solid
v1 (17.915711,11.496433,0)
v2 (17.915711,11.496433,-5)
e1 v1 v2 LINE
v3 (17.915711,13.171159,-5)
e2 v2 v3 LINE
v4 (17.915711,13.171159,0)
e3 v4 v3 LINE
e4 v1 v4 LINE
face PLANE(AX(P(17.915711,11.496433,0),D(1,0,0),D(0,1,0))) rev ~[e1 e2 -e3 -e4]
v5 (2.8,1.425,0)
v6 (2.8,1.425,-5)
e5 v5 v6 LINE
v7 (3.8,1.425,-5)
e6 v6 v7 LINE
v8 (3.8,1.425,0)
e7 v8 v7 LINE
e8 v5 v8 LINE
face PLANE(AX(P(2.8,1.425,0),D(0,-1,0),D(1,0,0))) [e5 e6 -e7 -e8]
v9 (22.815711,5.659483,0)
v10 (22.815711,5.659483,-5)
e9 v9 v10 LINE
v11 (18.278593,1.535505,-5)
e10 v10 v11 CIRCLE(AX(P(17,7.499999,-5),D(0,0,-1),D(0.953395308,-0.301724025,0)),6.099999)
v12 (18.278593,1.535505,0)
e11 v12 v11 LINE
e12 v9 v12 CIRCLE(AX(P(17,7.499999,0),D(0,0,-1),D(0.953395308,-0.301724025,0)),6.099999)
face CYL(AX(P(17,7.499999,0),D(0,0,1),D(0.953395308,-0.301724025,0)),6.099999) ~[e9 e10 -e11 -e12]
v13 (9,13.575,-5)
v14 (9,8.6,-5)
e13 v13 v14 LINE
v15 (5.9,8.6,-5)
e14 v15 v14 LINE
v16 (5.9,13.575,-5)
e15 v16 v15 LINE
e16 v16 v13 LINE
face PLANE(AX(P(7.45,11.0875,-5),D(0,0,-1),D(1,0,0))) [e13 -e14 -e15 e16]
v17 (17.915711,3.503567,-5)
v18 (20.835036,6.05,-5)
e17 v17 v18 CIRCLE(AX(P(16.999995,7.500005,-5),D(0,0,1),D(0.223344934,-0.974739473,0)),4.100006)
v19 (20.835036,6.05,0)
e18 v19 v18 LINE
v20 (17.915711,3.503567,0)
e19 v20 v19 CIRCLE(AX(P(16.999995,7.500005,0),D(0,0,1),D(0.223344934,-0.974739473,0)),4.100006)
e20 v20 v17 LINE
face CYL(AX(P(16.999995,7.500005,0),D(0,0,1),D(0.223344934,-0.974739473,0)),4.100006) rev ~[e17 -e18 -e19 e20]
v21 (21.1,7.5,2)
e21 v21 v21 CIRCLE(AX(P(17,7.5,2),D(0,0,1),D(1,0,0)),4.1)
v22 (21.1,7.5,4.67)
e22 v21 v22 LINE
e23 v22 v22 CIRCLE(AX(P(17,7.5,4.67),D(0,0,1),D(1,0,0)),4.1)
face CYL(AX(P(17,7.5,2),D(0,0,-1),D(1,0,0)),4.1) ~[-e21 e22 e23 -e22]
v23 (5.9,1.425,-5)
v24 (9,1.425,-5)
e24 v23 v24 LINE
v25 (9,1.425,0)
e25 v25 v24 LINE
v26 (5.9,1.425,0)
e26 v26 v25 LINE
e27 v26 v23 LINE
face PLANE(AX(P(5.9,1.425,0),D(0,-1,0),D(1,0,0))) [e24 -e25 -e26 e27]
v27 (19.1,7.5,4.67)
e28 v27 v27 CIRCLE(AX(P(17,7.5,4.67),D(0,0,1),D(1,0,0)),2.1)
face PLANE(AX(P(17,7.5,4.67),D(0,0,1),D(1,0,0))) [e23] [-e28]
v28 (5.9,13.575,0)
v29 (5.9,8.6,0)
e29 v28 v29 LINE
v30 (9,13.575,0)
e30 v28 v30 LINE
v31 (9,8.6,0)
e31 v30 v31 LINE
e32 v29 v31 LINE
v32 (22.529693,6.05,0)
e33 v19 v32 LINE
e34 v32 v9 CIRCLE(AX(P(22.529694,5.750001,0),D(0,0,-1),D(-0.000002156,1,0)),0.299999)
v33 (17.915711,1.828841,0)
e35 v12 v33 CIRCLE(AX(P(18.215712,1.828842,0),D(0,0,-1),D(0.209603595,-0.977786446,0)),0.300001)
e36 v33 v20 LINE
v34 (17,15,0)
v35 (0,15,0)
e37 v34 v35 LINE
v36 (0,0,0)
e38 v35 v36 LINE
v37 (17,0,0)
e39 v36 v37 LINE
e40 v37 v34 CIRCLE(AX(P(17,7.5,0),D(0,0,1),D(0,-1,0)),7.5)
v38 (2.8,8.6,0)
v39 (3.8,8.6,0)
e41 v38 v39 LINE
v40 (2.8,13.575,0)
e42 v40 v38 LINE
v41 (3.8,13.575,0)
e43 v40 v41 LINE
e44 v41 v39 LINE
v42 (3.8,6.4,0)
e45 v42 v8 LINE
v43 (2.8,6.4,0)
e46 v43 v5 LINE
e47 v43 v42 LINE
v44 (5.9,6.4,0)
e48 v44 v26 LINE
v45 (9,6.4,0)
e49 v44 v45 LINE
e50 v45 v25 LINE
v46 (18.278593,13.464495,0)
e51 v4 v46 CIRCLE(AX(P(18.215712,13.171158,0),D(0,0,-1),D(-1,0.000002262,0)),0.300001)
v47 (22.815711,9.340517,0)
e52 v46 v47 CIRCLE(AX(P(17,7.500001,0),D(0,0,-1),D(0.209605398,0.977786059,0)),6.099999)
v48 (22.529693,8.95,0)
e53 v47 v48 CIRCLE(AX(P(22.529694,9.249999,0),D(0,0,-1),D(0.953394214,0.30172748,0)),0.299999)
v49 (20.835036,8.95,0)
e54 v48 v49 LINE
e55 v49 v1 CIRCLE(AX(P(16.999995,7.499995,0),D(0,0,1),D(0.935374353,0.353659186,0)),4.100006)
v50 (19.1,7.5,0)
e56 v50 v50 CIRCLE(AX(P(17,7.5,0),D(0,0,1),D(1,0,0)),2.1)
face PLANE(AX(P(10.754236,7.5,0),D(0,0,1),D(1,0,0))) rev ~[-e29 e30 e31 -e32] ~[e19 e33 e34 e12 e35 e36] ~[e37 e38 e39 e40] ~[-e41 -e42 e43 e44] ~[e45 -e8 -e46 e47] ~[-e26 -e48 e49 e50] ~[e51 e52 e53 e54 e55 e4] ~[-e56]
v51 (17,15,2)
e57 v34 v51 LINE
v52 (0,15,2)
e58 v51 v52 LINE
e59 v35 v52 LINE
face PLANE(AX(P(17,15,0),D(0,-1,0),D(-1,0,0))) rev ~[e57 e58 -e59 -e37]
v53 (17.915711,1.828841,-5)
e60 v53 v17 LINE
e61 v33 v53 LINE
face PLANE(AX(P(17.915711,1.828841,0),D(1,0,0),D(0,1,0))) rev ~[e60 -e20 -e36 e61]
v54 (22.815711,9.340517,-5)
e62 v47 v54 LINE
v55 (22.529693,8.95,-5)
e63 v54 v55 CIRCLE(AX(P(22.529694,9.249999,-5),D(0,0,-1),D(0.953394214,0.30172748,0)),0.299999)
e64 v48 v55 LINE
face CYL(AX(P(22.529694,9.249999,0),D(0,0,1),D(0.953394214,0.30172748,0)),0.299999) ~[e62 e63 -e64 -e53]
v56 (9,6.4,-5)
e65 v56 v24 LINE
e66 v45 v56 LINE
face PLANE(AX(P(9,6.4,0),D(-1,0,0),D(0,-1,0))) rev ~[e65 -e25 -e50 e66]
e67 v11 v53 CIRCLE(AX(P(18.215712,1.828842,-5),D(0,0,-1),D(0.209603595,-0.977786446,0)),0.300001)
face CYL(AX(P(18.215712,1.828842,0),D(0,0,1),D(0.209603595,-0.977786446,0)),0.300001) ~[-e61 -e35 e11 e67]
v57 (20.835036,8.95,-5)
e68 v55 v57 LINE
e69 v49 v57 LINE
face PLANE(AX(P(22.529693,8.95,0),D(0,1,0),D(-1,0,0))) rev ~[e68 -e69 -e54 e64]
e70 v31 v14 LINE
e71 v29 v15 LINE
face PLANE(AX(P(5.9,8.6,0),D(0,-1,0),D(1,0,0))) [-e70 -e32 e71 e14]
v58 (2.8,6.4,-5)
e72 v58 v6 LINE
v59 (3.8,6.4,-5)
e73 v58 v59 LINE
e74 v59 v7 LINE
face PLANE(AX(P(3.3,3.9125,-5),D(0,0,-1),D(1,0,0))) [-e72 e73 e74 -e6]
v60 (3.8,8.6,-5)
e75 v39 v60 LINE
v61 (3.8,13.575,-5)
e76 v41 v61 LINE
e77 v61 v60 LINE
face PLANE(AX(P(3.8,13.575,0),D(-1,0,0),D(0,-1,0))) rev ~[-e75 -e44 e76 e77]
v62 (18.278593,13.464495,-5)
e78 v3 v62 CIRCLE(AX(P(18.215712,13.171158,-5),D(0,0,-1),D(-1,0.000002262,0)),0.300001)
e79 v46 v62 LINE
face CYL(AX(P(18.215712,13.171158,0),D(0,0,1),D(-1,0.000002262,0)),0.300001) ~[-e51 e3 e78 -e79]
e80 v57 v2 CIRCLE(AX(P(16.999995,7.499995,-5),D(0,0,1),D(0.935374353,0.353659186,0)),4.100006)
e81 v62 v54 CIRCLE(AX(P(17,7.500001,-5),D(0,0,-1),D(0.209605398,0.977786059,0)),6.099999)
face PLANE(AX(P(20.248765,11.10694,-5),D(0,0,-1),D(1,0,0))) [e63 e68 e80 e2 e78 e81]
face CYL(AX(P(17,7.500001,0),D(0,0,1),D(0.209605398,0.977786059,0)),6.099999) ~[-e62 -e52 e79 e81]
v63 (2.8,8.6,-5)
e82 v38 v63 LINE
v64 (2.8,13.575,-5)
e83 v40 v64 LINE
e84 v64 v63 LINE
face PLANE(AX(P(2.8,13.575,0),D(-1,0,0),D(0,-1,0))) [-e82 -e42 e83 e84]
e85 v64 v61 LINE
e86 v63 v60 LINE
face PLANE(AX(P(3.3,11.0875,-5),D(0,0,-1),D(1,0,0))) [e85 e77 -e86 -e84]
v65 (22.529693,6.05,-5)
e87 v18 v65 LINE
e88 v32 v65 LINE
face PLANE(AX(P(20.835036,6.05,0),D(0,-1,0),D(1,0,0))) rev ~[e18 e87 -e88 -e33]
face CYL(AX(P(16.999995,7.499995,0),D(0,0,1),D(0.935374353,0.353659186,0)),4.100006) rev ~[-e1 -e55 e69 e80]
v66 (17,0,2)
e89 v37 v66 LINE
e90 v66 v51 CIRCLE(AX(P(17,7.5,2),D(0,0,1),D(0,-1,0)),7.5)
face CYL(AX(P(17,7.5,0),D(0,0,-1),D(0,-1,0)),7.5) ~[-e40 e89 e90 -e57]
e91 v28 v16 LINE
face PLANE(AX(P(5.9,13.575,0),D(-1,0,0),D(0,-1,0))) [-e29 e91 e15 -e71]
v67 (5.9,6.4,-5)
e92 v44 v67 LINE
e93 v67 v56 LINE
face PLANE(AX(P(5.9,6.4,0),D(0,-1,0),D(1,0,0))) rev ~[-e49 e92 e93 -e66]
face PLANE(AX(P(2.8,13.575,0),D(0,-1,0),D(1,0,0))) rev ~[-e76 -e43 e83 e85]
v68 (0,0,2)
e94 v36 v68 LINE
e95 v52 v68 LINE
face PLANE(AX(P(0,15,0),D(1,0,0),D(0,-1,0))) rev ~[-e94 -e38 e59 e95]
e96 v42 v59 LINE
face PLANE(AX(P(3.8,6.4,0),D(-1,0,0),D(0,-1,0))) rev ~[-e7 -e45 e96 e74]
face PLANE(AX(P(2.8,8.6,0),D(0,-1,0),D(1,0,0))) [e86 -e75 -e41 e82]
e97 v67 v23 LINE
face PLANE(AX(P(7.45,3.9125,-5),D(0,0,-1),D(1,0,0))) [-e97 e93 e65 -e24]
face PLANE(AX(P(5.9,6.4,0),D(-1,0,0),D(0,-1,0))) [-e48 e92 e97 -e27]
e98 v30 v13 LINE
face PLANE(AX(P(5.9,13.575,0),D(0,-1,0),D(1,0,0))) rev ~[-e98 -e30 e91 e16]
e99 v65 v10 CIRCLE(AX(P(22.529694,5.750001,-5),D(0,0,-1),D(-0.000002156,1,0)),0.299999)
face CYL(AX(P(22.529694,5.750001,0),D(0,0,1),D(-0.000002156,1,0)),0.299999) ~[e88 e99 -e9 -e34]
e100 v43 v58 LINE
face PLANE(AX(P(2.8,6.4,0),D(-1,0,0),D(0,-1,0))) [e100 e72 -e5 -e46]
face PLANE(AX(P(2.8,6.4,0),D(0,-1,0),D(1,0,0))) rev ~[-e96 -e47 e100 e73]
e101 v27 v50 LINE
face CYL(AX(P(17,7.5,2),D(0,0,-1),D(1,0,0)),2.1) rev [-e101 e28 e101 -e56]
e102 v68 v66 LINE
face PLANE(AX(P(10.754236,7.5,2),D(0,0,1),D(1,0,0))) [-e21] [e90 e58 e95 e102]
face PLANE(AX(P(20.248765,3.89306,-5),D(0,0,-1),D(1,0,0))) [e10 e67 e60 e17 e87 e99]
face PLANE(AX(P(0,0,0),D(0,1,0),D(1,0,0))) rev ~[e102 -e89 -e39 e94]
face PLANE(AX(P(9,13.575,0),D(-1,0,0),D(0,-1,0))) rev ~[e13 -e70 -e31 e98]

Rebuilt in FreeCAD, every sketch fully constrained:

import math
import FreeCAD as App
import Part
import Sketcher
from FreeCAD import Vector
Q = App.Units.Quantity

doc = App.newDocument("Part")
params = doc.addObject("Spreadsheet::Sheet", "Params")
for row, (alias, value) in enumerate([
    ("sketch1_diameter", "4.2 mm"),
    ("sketch1_radius", "7.5 mm"),
    ("sketch1_width", "17 mm"),
    ("pad1_length", "2 mm"),
    ("sketch2_diameter", "8.2 mm"),
    ("sketch2_diameter2", "4.2 mm"),
    ("pad2_length", "2.67 mm"),
    ("sketch3_radius", "0.299999 mm"),
    ("sketch3_radius2", "6.099999 mm"),
    ("sketch3_width", "1 mm"),
    ("sketch3_width2", "3.1 mm"),
    ("pad3_length", "5 mm"),
], start=1):
    params.set(f"A{row}", alias)
    params.set(f"B{row}", "=" + value)
    params.setAlias(f"B{row}", alias)

body = doc.addObject("PartDesign::Body", "Body")

sketch1 = doc.addObject("Sketcher::SketchObject", "Sketch")
body.addObject(sketch1)
sketch1.AttachmentSupport = (doc.XY_Plane, [""])
sketch1.MapMode = "FlatFace"
sketch1.addGeometry([
    Part.LineSegment(Vector(0, 15, 0), Vector(0, 0, 0)),
    Part.LineSegment(Vector(0, 0, 0), Vector(17, 0, 0)),
    Part.ArcOfCircle(Part.Circle(Vector(17, 7.5, 0), Vector(0, 0, 1), 7.5), math.radians(-90), math.radians(90)),
    Part.LineSegment(Vector(17, 15, 0), Vector(0, 15, 0)),
    Part.Circle(Vector(17, 7.5, 0), Vector(0, 0, 1), 2.1),
], False)
sketch1.addConstraint([
    Sketcher.Constraint("Coincident", 0, 2, 1, 1),
    Sketcher.Constraint("Tangent", 1, 2, 2, 1),
    Sketcher.Constraint("Tangent", 2, 2, 3, 1),
    Sketcher.Constraint("Coincident", 3, 2, 0, 1),
    Sketcher.Constraint("Vertical", 0),
    Sketcher.Constraint("Horizontal", 1),
    Sketcher.Constraint("Horizontal", 3),
    Sketcher.Constraint("Coincident", 0, 2, -1, 1),
    Sketcher.Constraint("Coincident", 4, 3, 2, 3),
    Sketcher.Constraint("Diameter", 4, Q("4.2 mm")),
    Sketcher.Constraint("Radius", 2, Q("7.5 mm")),
    Sketcher.Constraint("DistanceX", 1, 1, 1, 2, Q("17 mm")),
])
sketch1.setExpression("Constraints[9]", "Params.sketch1_diameter")
sketch1.setExpression("Constraints[10]", "Params.sketch1_radius")
sketch1.setExpression("Constraints[11]", "Params.sketch1_width")
pad1 = doc.addObject("PartDesign::Pad", "Pad")
body.addObject(pad1)
pad1.Profile = sketch1
pad1.setExpression("Length", "Params.pad1_length")

sketch2 = doc.addObject("Sketcher::SketchObject", "Sketch001")
body.addObject(sketch2)
sketch2.AttachmentSupport = (doc.XY_Plane, [""])
sketch2.MapMode = "FlatFace"
sketch2.AttachmentOffset = App.Placement(Vector(0, 0, 2), App.Rotation())
sketch2.addGeometry([
    Part.Circle(Vector(17, 7.5, 0), Vector(0, 0, 1), 4.1),
    Part.Circle(Vector(17, 7.5, 0), Vector(0, 0, 1), 2.1),
], False)
sketch2.addConstraint([
    Sketcher.Constraint("Coincident", 1, 3, 0, 3),
    Sketcher.Constraint("Diameter", 0, Q("8.2 mm")),
    Sketcher.Constraint("Diameter", 1, Q("4.2 mm")),
    Sketcher.Constraint("DistanceX", -1, 1, 0, 3, Q("17 mm")),
    Sketcher.Constraint("DistanceY", -1, 1, 0, 3, Q("7.5 mm")),
])
sketch2.setExpression("Constraints[1]", "Params.sketch2_diameter")
sketch2.setExpression("Constraints[2]", "Params.sketch2_diameter2")
pad2 = doc.addObject("PartDesign::Pad", "Pad001")
body.addObject(pad2)
pad2.Profile = sketch2
pad2.setExpression("Length", "Params.pad2_length")

sketch3 = doc.addObject("Sketcher::SketchObject", "Sketch002")
body.addObject(sketch3)
sketch3.AttachmentSupport = (doc.XY_Plane, [""])
sketch3.MapMode = "FlatFace"
sketch3.addGeometry([
    Part.LineSegment(Vector(2.8, 1.425, 0), Vector(2.8, 6.4, 0)),
    Part.LineSegment(Vector(2.8, 6.4, 0), Vector(3.8, 6.4, 0)),
    Part.LineSegment(Vector(3.8, 6.4, 0), Vector(3.8, 1.425, 0)),
    Part.LineSegment(Vector(3.8, 1.425, 0), Vector(2.8, 1.425, 0)),
    Part.LineSegment(Vector(5.9, 1.425, 0), Vector(5.9, 6.4, 0)),
    Part.LineSegment(Vector(5.9, 6.4, 0), Vector(9, 6.4, 0)),
    Part.LineSegment(Vector(9, 6.4, 0), Vector(9, 1.425, 0)),
    Part.LineSegment(Vector(9, 1.425, 0), Vector(5.9, 1.425, 0)),
    Part.ArcOfCircle(Part.Circle(Vector(22.529694, 5.750001, 0), Vector(0, 0, 1), 0.299999), math.radians(-17.561389), math.radians(90.000124)),
    Part.ArcOfCircle(Part.Circle(Vector(17, 7.499999, 0), Vector(0, 0, 1), 6.099999), math.radians(-77.900771), math.radians(-17.561182)),
    Part.ArcOfCircle(Part.Circle(Vector(18.215712, 1.828842, 0), Vector(0, 0, 1), 0.300001), math.radians(-179.99987), math.radians(-77.900877)),
    Part.LineSegment(Vector(17.915711, 1.828841, 0), Vector(17.915711, 3.503567, 0)),
    Part.ArcOfCircle(Part.Circle(Vector(16.999995, 7.500005, 0), Vector(0, 0, 1), 4.100006), math.radians(-77.094427), math.radians(-20.711291)),
    Part.LineSegment(Vector(20.835036, 6.05, 0), Vector(22.529693, 6.05, 0)),
    Part.ArcOfCircle(Part.Circle(Vector(18.215712, 13.171158, 0), Vector(0, 0, 1), 0.300001), math.radians(77.900877), math.radians(179.99987)),
    Part.ArcOfCircle(Part.Circle(Vector(17, 7.500001, 0), Vector(0, 0, 1), 6.099999), math.radians(17.561182), math.radians(77.900771)),
    Part.ArcOfCircle(Part.Circle(Vector(22.529694, 9.249999, 0), Vector(0, 0, 1), 0.299999), math.radians(-90.000124), math.radians(17.561389)),
    Part.LineSegment(Vector(22.529693, 8.95, 0), Vector(20.835036, 8.95, 0)),
    Part.ArcOfCircle(Part.Circle(Vector(16.999995, 7.499995, 0), Vector(0, 0, 1), 4.100006), math.radians(20.711291), math.radians(77.094427)),
    Part.LineSegment(Vector(17.915711, 11.496433, 0), Vector(17.915711, 13.171159, 0)),
    Part.LineSegment(Vector(2.8, 8.6, 0), Vector(2.8, 13.575, 0)),
    Part.LineSegment(Vector(2.8, 13.575, 0), Vector(3.8, 13.575, 0)),
    Part.LineSegment(Vector(3.8, 13.575, 0), Vector(3.8, 8.6, 0)),
    Part.LineSegment(Vector(3.8, 8.6, 0), Vector(2.8, 8.6, 0)),
    Part.LineSegment(Vector(5.9, 8.6, 0), Vector(5.9, 13.575, 0)),
    Part.LineSegment(Vector(5.9, 13.575, 0), Vector(9, 13.575, 0)),
    Part.LineSegment(Vector(9, 13.575, 0), Vector(9, 8.6, 0)),
    Part.LineSegment(Vector(9, 8.6, 0), Vector(5.9, 8.6, 0)),
], False)
sketch3.addConstraint([
    Sketcher.Constraint("Coincident", 0, 2, 1, 1),
    Sketcher.Constraint("Coincident", 1, 2, 2, 1),
    Sketcher.Constraint("Coincident", 2, 2, 3, 1),
    Sketcher.Constraint("Coincident", 3, 2, 0, 1),
    Sketcher.Constraint("Coincident", 4, 2, 5, 1),
    Sketcher.Constraint("Coincident", 5, 2, 6, 1),
    Sketcher.Constraint("Coincident", 6, 2, 7, 1),
    Sketcher.Constraint("Coincident", 7, 2, 4, 1),
    Sketcher.Constraint("Coincident", 8, 1, 9, 2),
    Sketcher.Constraint("Tangent", 9, 1, 10, 2),
    Sketcher.Constraint("Coincident", 10, 1, 11, 1),
    Sketcher.Constraint("Coincident", 11, 2, 12, 1),
    Sketcher.Constraint("Coincident", 12, 2, 13, 1),
    Sketcher.Constraint("Coincident", 13, 2, 8, 2),
    Sketcher.Constraint("Tangent", 14, 1, 15, 2),
    Sketcher.Constraint("Coincident", 15, 1, 16, 2),
    Sketcher.Constraint("Coincident", 16, 1, 17, 1),
    Sketcher.Constraint("Coincident", 17, 2, 18, 1),
    Sketcher.Constraint("Coincident", 18, 2, 19, 1),
    Sketcher.Constraint("Coincident", 19, 2, 14, 2),
    Sketcher.Constraint("Coincident", 20, 2, 21, 1),
    Sketcher.Constraint("Coincident", 21, 2, 22, 1),
    Sketcher.Constraint("Coincident", 22, 2, 23, 1),
    Sketcher.Constraint("Coincident", 23, 2, 20, 1),
    Sketcher.Constraint("Coincident", 24, 2, 25, 1),
    Sketcher.Constraint("Coincident", 25, 2, 26, 1),
    Sketcher.Constraint("Coincident", 26, 2, 27, 1),
    Sketcher.Constraint("Coincident", 27, 2, 24, 1),
    Sketcher.Constraint("Vertical", 0),
    Sketcher.Constraint("Horizontal", 1),
    Sketcher.Constraint("Vertical", 2),
    Sketcher.Constraint("Horizontal", 3),
    Sketcher.Constraint("Vertical", 4),
    Sketcher.Constraint("Horizontal", 5),
    Sketcher.Constraint("Vertical", 6),
    Sketcher.Constraint("Horizontal", 7),
    Sketcher.Constraint("Vertical", 11),
    Sketcher.Constraint("Horizontal", 13),
    Sketcher.Constraint("Horizontal", 17),
    Sketcher.Constraint("Vertical", 19),
    Sketcher.Constraint("Vertical", 20),
    Sketcher.Constraint("Horizontal", 21),
    Sketcher.Constraint("Vertical", 22),
    Sketcher.Constraint("Horizontal", 23),
    Sketcher.Constraint("Vertical", 24),
    Sketcher.Constraint("Horizontal", 25),
    Sketcher.Constraint("Vertical", 26),
    Sketcher.Constraint("Horizontal", 27),
    Sketcher.Constraint("Coincident", 12, 3, 9, 3),
    Sketcher.Constraint("Coincident", 15, 3, 9, 3),
    Sketcher.Constraint("Coincident", 18, 3, 9, 3),
    Sketcher.Constraint("Equal", 8, 10),
    Sketcher.Constraint("Equal", 10, 14),
    Sketcher.Constraint("Equal", 9, 15),
    Sketcher.Constraint("Equal", 14, 16),
    Sketcher.Constraint("Equal", 12, 18),
    Sketcher.Constraint("Horizontal", 1, 2, 4, 2),
    Sketcher.Constraint("Horizontal", 3, 2, 6, 2),
    Sketcher.Constraint("Horizontal", 14, 3, 19, 2),
    Sketcher.Constraint("Horizontal", 21, 2, 24, 2),
    Sketcher.Constraint("Horizontal", 23, 2, 26, 2),
    Sketcher.Constraint("Vertical", 10, 3, 14, 3),
    Sketcher.Constraint("Vertical", 8, 3, 16, 3),
    Sketcher.Constraint("Vertical", 16, 3, 13, 2),
    Sketcher.Constraint("Vertical", 8, 1, 15, 1),
    Sketcher.Constraint("Vertical", 13, 2, 16, 1),
    Sketcher.Constraint("Vertical", 3, 2, 20, 2),
    Sketcher.Constraint("Vertical", 2, 2, 21, 2),
    Sketcher.Constraint("Vertical", 7, 2, 24, 2),
    Sketcher.Constraint("Vertical", 6, 2, 25, 2),
    Sketcher.Constraint("Equal", 11, 19),
    Sketcher.Constraint("Equal", 6, 20),
    Sketcher.Constraint("Radius", 8, Q("0.299999 mm")),
    Sketcher.Constraint("Radius", 9, Q("6.099999 mm")),
    Sketcher.Constraint("DistanceX", 1, 1, 1, 2, Q("1 mm")),
    Sketcher.Constraint("DistanceX", 5, 1, 5, 2, Q("3.1 mm")),
    Sketcher.Constraint("DistanceX", -1, 1, 9, 3, Q("17 mm")),
    Sketcher.Constraint("DistanceX", -1, 1, 5, 2, Q("9 mm")),
    Sketcher.Constraint("DistanceY", -1, 1, 9, 3, Q("7.499999 mm")),
    Sketcher.Constraint("DistanceX", -1, 1, 0, 2, Q("2.8 mm")),
    Sketcher.Constraint("DistanceY", -1, 1, 0, 2, Q("6.4 mm")),
    Sketcher.Constraint("DistanceY", -1, 1, 22, 2, Q("8.6 mm")),
    Sketcher.Constraint("DistanceY", 8, 3, 16, 3, Q("3.499998 mm")),
    Sketcher.Constraint("DistanceX", 10, 3, 8, 1, Q("4.599999 mm")),
    Sketcher.Constraint("DistanceY", 0, 1, 0, 2, Q("4.975 mm")),
    Sketcher.Constraint("Radius", 12, Q("4.100006 mm")),
    Sketcher.Constraint("DistanceX", 9, 1, 8, 3, Q("4.251101 mm")),
])
sketch3.setExpression("Constraints[72]", "Params.sketch3_radius")
sketch3.setExpression("Constraints[73]", "Params.sketch3_radius2")
sketch3.setExpression("Constraints[74]", "Params.sketch3_width")
sketch3.setExpression("Constraints[75]", "Params.sketch3_width2")
pad3 = doc.addObject("PartDesign::Pad", "Pad002")
body.addObject(pad3)
pad3.Profile = sketch3
pad3.setExpression("Length", "Params.pad3_length")
pad3.Reversed = True

doc.recompute()
